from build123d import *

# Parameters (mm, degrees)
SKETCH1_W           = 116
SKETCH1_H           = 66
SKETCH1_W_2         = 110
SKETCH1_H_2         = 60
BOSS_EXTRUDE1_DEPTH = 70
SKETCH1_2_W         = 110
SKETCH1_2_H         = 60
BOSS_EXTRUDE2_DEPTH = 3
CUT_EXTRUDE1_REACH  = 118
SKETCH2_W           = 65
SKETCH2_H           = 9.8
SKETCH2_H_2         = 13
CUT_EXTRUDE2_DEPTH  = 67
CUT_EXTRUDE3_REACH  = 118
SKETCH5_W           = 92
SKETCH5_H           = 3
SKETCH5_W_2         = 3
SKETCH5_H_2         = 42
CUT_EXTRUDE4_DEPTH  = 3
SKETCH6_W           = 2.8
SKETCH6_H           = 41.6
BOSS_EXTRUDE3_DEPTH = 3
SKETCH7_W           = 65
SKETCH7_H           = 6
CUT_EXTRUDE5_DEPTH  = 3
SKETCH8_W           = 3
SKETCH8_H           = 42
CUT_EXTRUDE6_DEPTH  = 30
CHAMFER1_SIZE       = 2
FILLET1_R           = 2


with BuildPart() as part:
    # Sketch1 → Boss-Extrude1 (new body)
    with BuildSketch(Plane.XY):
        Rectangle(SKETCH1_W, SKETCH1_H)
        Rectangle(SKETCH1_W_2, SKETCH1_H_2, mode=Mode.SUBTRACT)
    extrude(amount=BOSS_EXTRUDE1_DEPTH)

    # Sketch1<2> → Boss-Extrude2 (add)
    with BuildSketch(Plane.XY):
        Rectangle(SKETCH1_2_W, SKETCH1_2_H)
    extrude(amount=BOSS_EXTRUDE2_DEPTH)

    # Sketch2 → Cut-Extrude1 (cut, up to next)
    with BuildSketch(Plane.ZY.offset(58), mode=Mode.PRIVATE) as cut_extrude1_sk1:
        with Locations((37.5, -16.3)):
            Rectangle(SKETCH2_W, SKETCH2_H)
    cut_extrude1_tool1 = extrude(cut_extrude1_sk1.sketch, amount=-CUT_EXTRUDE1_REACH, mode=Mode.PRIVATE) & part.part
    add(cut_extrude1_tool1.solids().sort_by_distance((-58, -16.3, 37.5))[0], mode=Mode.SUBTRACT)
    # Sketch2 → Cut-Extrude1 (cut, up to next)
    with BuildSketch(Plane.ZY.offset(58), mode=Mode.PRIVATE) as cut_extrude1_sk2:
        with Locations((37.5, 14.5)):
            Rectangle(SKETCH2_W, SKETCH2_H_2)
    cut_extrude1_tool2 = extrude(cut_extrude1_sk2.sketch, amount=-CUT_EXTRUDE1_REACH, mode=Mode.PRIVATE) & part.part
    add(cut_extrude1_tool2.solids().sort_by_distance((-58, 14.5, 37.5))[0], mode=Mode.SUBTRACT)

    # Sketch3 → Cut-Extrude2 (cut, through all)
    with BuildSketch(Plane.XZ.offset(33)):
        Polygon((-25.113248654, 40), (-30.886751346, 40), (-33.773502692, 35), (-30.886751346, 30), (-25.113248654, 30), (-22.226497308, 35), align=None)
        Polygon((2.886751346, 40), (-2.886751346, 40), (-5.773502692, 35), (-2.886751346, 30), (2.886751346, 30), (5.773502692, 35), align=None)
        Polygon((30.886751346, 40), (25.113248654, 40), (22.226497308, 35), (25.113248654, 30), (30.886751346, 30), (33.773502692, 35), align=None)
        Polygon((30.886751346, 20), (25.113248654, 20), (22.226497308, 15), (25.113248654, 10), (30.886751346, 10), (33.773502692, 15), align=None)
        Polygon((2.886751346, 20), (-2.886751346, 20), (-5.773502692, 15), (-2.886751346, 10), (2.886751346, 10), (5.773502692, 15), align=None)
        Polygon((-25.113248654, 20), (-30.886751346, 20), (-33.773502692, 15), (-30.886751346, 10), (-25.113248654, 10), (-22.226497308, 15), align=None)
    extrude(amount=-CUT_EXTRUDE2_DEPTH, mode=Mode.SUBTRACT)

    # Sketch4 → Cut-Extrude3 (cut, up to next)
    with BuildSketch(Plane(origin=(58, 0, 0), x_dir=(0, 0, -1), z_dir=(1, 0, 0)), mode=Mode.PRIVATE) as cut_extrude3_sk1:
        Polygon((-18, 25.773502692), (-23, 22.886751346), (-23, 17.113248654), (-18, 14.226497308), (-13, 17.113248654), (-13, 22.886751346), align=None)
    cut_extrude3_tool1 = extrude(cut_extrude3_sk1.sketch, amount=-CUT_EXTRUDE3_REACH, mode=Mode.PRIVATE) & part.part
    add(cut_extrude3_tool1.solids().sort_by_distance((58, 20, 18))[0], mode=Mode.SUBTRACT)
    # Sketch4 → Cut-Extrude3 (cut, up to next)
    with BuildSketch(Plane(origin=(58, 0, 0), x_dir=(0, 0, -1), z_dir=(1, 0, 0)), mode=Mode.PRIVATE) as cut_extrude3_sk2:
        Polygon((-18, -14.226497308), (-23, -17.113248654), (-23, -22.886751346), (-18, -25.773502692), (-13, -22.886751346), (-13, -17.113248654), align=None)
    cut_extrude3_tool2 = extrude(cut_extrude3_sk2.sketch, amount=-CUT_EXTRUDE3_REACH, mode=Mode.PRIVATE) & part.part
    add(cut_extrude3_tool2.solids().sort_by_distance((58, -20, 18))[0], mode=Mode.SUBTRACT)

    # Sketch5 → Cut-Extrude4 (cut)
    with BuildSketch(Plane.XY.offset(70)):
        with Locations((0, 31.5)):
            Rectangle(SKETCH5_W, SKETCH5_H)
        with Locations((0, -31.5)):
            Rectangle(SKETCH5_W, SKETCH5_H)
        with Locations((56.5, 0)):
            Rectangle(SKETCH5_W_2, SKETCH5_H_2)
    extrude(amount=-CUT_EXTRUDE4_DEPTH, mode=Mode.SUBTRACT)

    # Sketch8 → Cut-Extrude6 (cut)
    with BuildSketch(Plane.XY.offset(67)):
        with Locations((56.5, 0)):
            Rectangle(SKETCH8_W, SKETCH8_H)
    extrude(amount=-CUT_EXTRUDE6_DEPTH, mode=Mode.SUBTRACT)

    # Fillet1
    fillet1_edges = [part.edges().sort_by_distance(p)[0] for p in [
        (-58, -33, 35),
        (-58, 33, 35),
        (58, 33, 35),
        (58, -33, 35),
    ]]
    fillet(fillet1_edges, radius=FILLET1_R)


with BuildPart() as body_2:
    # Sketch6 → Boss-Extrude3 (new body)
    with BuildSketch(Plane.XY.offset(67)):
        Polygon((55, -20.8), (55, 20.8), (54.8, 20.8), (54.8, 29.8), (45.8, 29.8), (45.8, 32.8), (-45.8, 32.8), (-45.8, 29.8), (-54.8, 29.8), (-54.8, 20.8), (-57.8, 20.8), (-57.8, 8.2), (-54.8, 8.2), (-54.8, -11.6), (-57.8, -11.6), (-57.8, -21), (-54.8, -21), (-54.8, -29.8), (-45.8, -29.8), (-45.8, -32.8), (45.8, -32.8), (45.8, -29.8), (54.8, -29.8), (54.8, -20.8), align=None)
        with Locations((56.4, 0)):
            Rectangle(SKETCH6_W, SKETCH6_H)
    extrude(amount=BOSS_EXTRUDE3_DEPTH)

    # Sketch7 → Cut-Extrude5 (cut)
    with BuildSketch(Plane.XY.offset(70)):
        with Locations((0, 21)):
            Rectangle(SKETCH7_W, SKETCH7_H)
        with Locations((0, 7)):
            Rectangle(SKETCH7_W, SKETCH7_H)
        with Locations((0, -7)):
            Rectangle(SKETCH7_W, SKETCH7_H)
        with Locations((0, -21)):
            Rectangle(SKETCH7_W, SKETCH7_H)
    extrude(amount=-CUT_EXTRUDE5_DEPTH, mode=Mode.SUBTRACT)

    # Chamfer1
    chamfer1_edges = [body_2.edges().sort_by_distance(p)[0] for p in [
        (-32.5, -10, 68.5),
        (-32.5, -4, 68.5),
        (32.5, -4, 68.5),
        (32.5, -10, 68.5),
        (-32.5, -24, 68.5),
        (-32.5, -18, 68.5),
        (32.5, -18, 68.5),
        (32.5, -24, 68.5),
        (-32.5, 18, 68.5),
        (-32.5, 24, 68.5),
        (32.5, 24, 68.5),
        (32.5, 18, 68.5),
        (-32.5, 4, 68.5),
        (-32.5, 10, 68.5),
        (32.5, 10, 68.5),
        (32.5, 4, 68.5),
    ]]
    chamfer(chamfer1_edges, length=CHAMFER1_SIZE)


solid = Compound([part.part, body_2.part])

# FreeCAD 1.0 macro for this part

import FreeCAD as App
import Part
import Sketcher

V = App.Vector
Q = App.Units.Quantity


def edges_at(feature, points):
    """Names of the edges that pass closest to the given points."""
    edges = feature.Shape.Edges
    near = lambda p: min(range(len(edges)), key=lambda i: edges[i].distToShape(Part.Vertex(*p))[0])
    return sorted({f"Edge{near(p) + 1}" for p in points})


def add_polygon(sketch, points):
    """Adds a closed chain of lines whose ends are joined by coincident constraints."""
    first, n = sketch.GeometryCount, len(points)
    for a, b in zip(points, points[1:] + points[:1]):
        sketch.addGeometry(Part.LineSegment(App.Vector(*a, 0), App.Vector(*b, 0)), False)
    for i in range(n):
        sketch.addConstraint(Sketcher.Constraint("Coincident", first + i, 2, first + (i + 1) % n, 1))

doc = App.newDocument("Part")
body = doc.addObject("PartDesign::Body", "Body")

# Sketch on XY plane
sketch1 = body.newObject("Sketcher::SketchObject", "Sketch")
sketch1.AttachmentSupport = (doc.getObject("XY_Plane"), [""])
sketch1.MapMode = "FlatFace"
add_polygon(sketch1, [(-58, 33), (-58, -33), (58, -33), (58, 33)])  # lines 0-3
add_polygon(sketch1, [(55, -30), (-55, -30), (-55, 30), (55, 30)])  # lines 4-7
sketch1.addConstraint([
    Sketcher.Constraint("Vertical", 0),
    Sketcher.Constraint("Horizontal", 1),
    Sketcher.Constraint("Vertical", 2),
    Sketcher.Constraint("Horizontal", 3),
    Sketcher.Constraint("Horizontal", 4),
    Sketcher.Constraint("Vertical", 5),
    Sketcher.Constraint("Horizontal", 6),
    Sketcher.Constraint("Vertical", 7),
    Sketcher.Constraint("Symmetric", 0, 2, 2, 2, -1, 1),
    Sketcher.Constraint("Symmetric", 4, 2, 6, 2, -1, 1),
    Sketcher.Constraint("DistanceX", 1, 1, 1, 2, 116.0),
    Sketcher.Constraint("DistanceX", 4, 2, 4, 1, 110.0),
    Sketcher.Constraint("DistanceY", 0, 2, 0, 1, 66.0),
    Sketcher.Constraint("DistanceY", 5, 1, 5, 2, 60.0),
])
pad1 = body.newObject("PartDesign::Pad", "Pad")
pad1.Profile = sketch1
pad1.Length = 70

# Sketch on XY plane
sketch2 = body.newObject("Sketcher::SketchObject", "Sketch001")
sketch2.AttachmentSupport = (doc.getObject("XY_Plane"), [""])
sketch2.MapMode = "FlatFace"
add_polygon(sketch2, [(-55, 30), (-55, -30), (55, -30), (55, 30)])  # lines 0-3
sketch2.addConstraint([
    Sketcher.Constraint("Vertical", 0),
    Sketcher.Constraint("Horizontal", 1),
    Sketcher.Constraint("Vertical", 2),
    Sketcher.Constraint("Horizontal", 3),
    Sketcher.Constraint("Symmetric", 0, 2, 2, 2, -1, 1),
    Sketcher.Constraint("DistanceX", 1, 1, 1, 2, 110.0),
    Sketcher.Constraint("DistanceY", 0, 2, 0, 1, 60.0),
])
pad2 = body.newObject("PartDesign::Pad", "Pad001")
pad2.Profile = sketch2
pad2.Length = 3

# Sketch on YZ plane
sketch3 = body.newObject("Sketcher::SketchObject", "Sketch002")
sketch3.AttachmentSupport = (doc.getObject("YZ_Plane"), [""])
sketch3.MapMode = "FlatFace"
sketch3.AttachmentOffset = App.Placement(V(0, 0, -58), App.Rotation())
add_polygon(sketch3, [(-11, 5), (-21, 5), (-21, 70), (-11, 70)])  # lines 0-3
sketch3.addConstraint([
    Sketcher.Constraint("Horizontal", 0),
    Sketcher.Constraint("Vertical", 1),
    Sketcher.Constraint("Horizontal", 2),
    Sketcher.Constraint("Vertical", 3),
    Sketcher.Constraint("DistanceY", 1, 1, 1, 2, 65.0),
    Sketcher.Constraint("DistanceX", 0, 2, 0, 1, 9.8),
    Sketcher.Constraint("DistanceY", -1, 1, 0, 2, 5.0),
    Sketcher.Constraint("DistanceX", 0, 2, -1, 1, 21.2),
])
pocket1 = body.newObject("PartDesign::Pocket", "Pocket")
pocket1.Profile = sketch3
pocket1.Type = "UpToFirst"
pocket1.Reversed = True

# Sketch on YZ plane
sketch4 = body.newObject("Sketcher::SketchObject", "Sketch003")
sketch4.AttachmentSupport = (doc.getObject("YZ_Plane"), [""])
sketch4.MapMode = "FlatFace"
sketch4.AttachmentOffset = App.Placement(V(0, 0, -58), App.Rotation())
add_polygon(sketch4, [(21, 5), (8, 5), (8, 70), (21, 70)])  # lines 0-3
sketch4.addConstraint([
    Sketcher.Constraint("Horizontal", 0),
    Sketcher.Constraint("Vertical", 1),
    Sketcher.Constraint("Horizontal", 2),
    Sketcher.Constraint("Vertical", 3),
    Sketcher.Constraint("DistanceX", 0, 2, 0, 1, 13.0),
    Sketcher.Constraint("DistanceY", 1, 1, 1, 2, 65.0),
    Sketcher.Constraint("DistanceX", -1, 1, 0, 2, 8.0),
    Sketcher.Constraint("DistanceY", -1, 1, 0, 2, 5.0),
])
pocket2 = body.newObject("PartDesign::Pocket", "Pocket001")
pocket2.Profile = sketch4
pocket2.Type = "UpToFirst"
pocket2.Reversed = True

# Sketch on XZ plane
sketch5 = body.newObject("Sketcher::SketchObject", "Sketch004")
sketch5.AttachmentSupport = (doc.getObject("XZ_Plane"), [""])
sketch5.MapMode = "FlatFace"
sketch5.AttachmentOffset = App.Placement(V(0, 0, 33), App.Rotation())
add_polygon(sketch5, [(-25, 40), (-31, 40), (-34, 35), (-31, 30), (-25, 30), (-22, 35)])  # lines 0-5
add_polygon(sketch5, [(3, 40), (-3, 40), (-6, 35), (-3, 30), (3, 30), (6, 35)])  # lines 6-11
add_polygon(sketch5, [(31, 40), (25, 40), (22, 35), (25, 30), (31, 30), (34, 35)])  # lines 12-17
add_polygon(sketch5, [(31, 20), (25, 20), (22, 15), (25, 10), (31, 10), (34, 15)])  # lines 18-23
add_polygon(sketch5, [(3, 20), (-3, 20), (-6, 15), (-3, 10), (3, 10), (6, 15)])  # lines 24-29
add_polygon(sketch5, [(-25, 20), (-31, 20), (-34, 15), (-31, 10), (-25, 10), (-22, 15)])  # lines 30-35
sketch5.addConstraint([
    Sketcher.Constraint("Horizontal", 0),
    Sketcher.Constraint("Horizontal", 3),
    Sketcher.Constraint("Horizontal", 6),
    Sketcher.Constraint("Horizontal", 9),
    Sketcher.Constraint("Horizontal", 12),
    Sketcher.Constraint("Horizontal", 15),
    Sketcher.Constraint("Horizontal", 18),
    Sketcher.Constraint("Horizontal", 21),
    Sketcher.Constraint("Horizontal", 24),
    Sketcher.Constraint("Horizontal", 27),
    Sketcher.Constraint("Horizontal", 30),
    Sketcher.Constraint("Horizontal", 33),
    Sketcher.Constraint("Symmetric", 7, 2, 10, 2, -2),
    Sketcher.Constraint("Symmetric", 5, 2, 12, 2, -2),
    Sketcher.Constraint("Symmetric", 4, 2, 13, 2, -2),
    Sketcher.Constraint("Symmetric", 3, 2, 14, 2, -2),
    Sketcher.Constraint("Symmetric", 1, 2, 16, 2, -2),
    Sketcher.Constraint("Symmetric", 25, 2, 28, 2, -2),
    Sketcher.Constraint("Symmetric", 23, 2, 30, 2, -2),
    Sketcher.Constraint("Symmetric", 22, 2, 31, 2, -2),
    Sketcher.Constraint("Symmetric", 21, 2, 32, 2, -2),
    Sketcher.Constraint("Symmetric", 19, 2, 34, 2, -2),
    Sketcher.Constraint("Parallel", 1, 4),
    Sketcher.Constraint("Parallel", 2, 5),
    Sketcher.Constraint("Parallel", 4, 7),
    Sketcher.Constraint("Parallel", 5, 8),
    Sketcher.Constraint("Parallel", 7, 10),
    Sketcher.Constraint("Parallel", 8, 11),
    Sketcher.Constraint("Parallel", 10, 13),
    Sketcher.Constraint("Parallel", 13, 16),
    Sketcher.Constraint("Parallel", 14, 17),
    Sketcher.Constraint("Parallel", 16, 19),
    Sketcher.Constraint("Parallel", 17, 20),
    Sketcher.Constraint("Parallel", 19, 22),
    Sketcher.Constraint("Parallel", 20, 23),
    Sketcher.Constraint("Parallel", 22, 25),
    Sketcher.Constraint("Parallel", 23, 26),
    Sketcher.Constraint("Parallel", 25, 28),
    Sketcher.Constraint("Parallel", 26, 29),
    Sketcher.Constraint("Parallel", 31, 34),
    Sketcher.Constraint("Parallel", 32, 35),
    Sketcher.Constraint("Horizontal", 1, 2, 4, 2),
    Sketcher.Constraint("Horizontal", 5, 2, 6, 2),
    Sketcher.Constraint("Horizontal", 4, 2, 7, 2),
    Sketcher.Constraint("Horizontal", 3, 2, 8, 2),
    Sketcher.Constraint("Horizontal", 19, 2, 22, 2),
    Sketcher.Constraint("Horizontal", 23, 2, 24, 2),
    Sketcher.Constraint("Horizontal", 22, 2, 25, 2),
    Sketcher.Constraint("Horizontal", 21, 2, 26, 2),
    Sketcher.Constraint("Vertical", 0, 2, 2, 2),
    Sketcher.Constraint("Vertical", 14, 2, 18, 2),
    Sketcher.Constraint("Vertical", 13, 2, 19, 2),
    Sketcher.Constraint("Vertical", 18, 2, 20, 2),
    Sketcher.Constraint("Vertical", 17, 2, 21, 2),
    Sketcher.Constraint("Vertical", 8, 2, 24, 2),
    Sketcher.Constraint("Equal", 3, 6),
    Sketcher.Constraint("Angle", 1, Q("-120 deg")),
    Sketcher.Constraint("DistanceY", -1, 1, 0, 2, 40.0),
    Sketcher.Constraint("DistanceY", -1, 1, 1, 2, 35.0),
    Sketcher.Constraint("DistanceY", -1, 1, 18, 2, 20.0),
    Sketcher.Constraint("DistanceX", 0, 2, 6, 2, 28.0),
    Sketcher.Constraint("DistanceX", 0, 2, 0, 1, 5.773503),
])
pocket3 = body.newObject("PartDesign::Pocket", "Pocket002")
pocket3.Profile = sketch5
pocket3.Type = "ThroughAll"

# Sketch on YZ plane
sketch6 = body.newObject("Sketcher::SketchObject", "Sketch005")
sketch6.AttachmentSupport = (doc.getObject("YZ_Plane"), [""])
sketch6.MapMode = "FlatFace"
sketch6.AttachmentOffset = App.Placement(V(0, 0, 58), App.Rotation())
add_polygon(sketch6, [(26, 18), (23, 23), (17, 23), (14, 18), (17, 13), (23, 13)])  # lines 0-5
sketch6.addConstraint([
    Sketcher.Constraint("Horizontal", 1),
    Sketcher.Constraint("Horizontal", 4),
    Sketcher.Constraint("Parallel", 0, 3),
    Sketcher.Constraint("Parallel", 2, 5),
    Sketcher.Constraint("Horizontal", 2, 2, 5, 2),
    Sketcher.Constraint("Vertical", 1, 2, 3, 2),
    Sketcher.Constraint("Vertical", 0, 2, 4, 2),
    Sketcher.Constraint("Angle", 0, Q("120 deg")),
    Sketcher.Constraint("DistanceY", -1, 1, 0, 2, 23.0),
    Sketcher.Constraint("DistanceY", -1, 1, 2, 2, 18.0),
    Sketcher.Constraint("DistanceX", 1, 2, 1, 1, 5.773503),
    Sketcher.Constraint("DistanceX", -1, 1, 0, 2, 22.886751),
])
pocket4 = body.newObject("PartDesign::Pocket", "Pocket003")
pocket4.Profile = sketch6
pocket4.Type = "UpToFirst"

# Sketch on YZ plane
sketch7 = body.newObject("Sketcher::SketchObject", "Sketch006")
sketch7.AttachmentSupport = (doc.getObject("YZ_Plane"), [""])
sketch7.MapMode = "FlatFace"
sketch7.AttachmentOffset = App.Placement(V(0, 0, 58), App.Rotation())
add_polygon(sketch7, [(-14, 18), (-17, 23), (-23, 23), (-26, 18), (-23, 13), (-17, 13)])  # lines 0-5
sketch7.addConstraint([
    Sketcher.Constraint("Horizontal", 1),
    Sketcher.Constraint("Horizontal", 4),
    Sketcher.Constraint("Parallel", 0, 3),
    Sketcher.Constraint("Parallel", 2, 5),
    Sketcher.Constraint("Horizontal", 2, 2, 5, 2),
    Sketcher.Constraint("Vertical", 1, 2, 3, 2),
    Sketcher.Constraint("Vertical", 0, 2, 4, 2),
    Sketcher.Constraint("Angle", 0, Q("120 deg")),
    Sketcher.Constraint("DistanceY", -1, 1, 0, 2, 23.0),
    Sketcher.Constraint("DistanceY", -1, 1, 2, 2, 18.0),
    Sketcher.Constraint("DistanceX", 1, 2, 1, 1, 5.773503),
    Sketcher.Constraint("DistanceX", 0, 2, -1, 1, 17.113249),
])
pocket5 = body.newObject("PartDesign::Pocket", "Pocket004")
pocket5.Profile = sketch7
pocket5.Type = "UpToFirst"

# Sketch on XY plane
sketch8 = body.newObject("Sketcher::SketchObject", "Sketch007")
sketch8.AttachmentSupport = (doc.getObject("XY_Plane"), [""])
sketch8.MapMode = "FlatFace"
sketch8.AttachmentOffset = App.Placement(V(0, 0, 70), App.Rotation())
add_polygon(sketch8, [(-46, 33), (-46, 30), (46, 30), (46, 33)])  # lines 0-3
add_polygon(sketch8, [(-46, -30), (-46, -33), (46, -33), (46, -30)])  # lines 4-7
add_polygon(sketch8, [(55, 21), (55, -21), (58, -21), (58, 21)])  # lines 8-11
sketch8.addConstraint([
    Sketcher.Constraint("Vertical", 0),
    Sketcher.Constraint("Horizontal", 1),
    Sketcher.Constraint("Vertical", 2),
    Sketcher.Constraint("Horizontal", 3),
    Sketcher.Constraint("Vertical", 4),
    Sketcher.Constraint("Horizontal", 5),
    Sketcher.Constraint("Vertical", 6),
    Sketcher.Constraint("Horizontal", 7),
    Sketcher.Constraint("Vertical", 8),
    Sketcher.Constraint("Horizontal", 9),
    Sketcher.Constraint("Vertical", 10),
    Sketcher.Constraint("Horizontal", 11),
    Sketcher.Constraint("Symmetric", 2, 2, 4, 2, -1, 1),
    Sketcher.Constraint("Symmetric", 0, 2, 6, 2, -1, 1),
    Sketcher.Constraint("Vertical", 3, 2, 4, 2),
    Sketcher.Constraint("Equal", 11, 0),
    Sketcher.Constraint("DistanceX", 1, 1, 1, 2, 92.0),
    Sketcher.Constraint("DistanceX", 9, 1, 9, 2, 3.0),
    Sketcher.Constraint("DistanceY", 8, 2, 8, 1, 42.0),
    Sketcher.Constraint("DistanceY", -1, 1, 0, 2, 30.0),
    Sketcher.Constraint("DistanceX", -1, 1, 8, 2, 55.0),
    Sketcher.Constraint("DistanceY", 8, 2, -1, 1, 21.0),
])
pocket6 = body.newObject("PartDesign::Pocket", "Pocket005")
pocket6.Profile = sketch8
pocket6.Length = 3

# Sketch on XY plane
sketch9 = body.newObject("Sketcher::SketchObject", "Sketch008")
sketch9.AttachmentSupport = (doc.getObject("XY_Plane"), [""])
sketch9.MapMode = "FlatFace"
sketch9.AttachmentOffset = App.Placement(V(0, 0, 67), App.Rotation())
add_polygon(sketch9, [(55, 21), (55, -21), (58, -21), (58, 21)])  # lines 0-3
sketch9.addConstraint([
    Sketcher.Constraint("Vertical", 0),
    Sketcher.Constraint("Horizontal", 1),
    Sketcher.Constraint("Vertical", 2),
    Sketcher.Constraint("Horizontal", 3),
    Sketcher.Constraint("DistanceX", 1, 1, 1, 2, 3.0),
    Sketcher.Constraint("DistanceY", 0, 2, 0, 1, 42.0),
    Sketcher.Constraint("DistanceX", -1, 1, 0, 2, 55.0),
    Sketcher.Constraint("DistanceY", 0, 2, -1, 1, 21.0),
])
pocket7 = body.newObject("PartDesign::Pocket", "Pocket006")
pocket7.Profile = sketch9
pocket7.Length = 30
doc.recompute()

fillet = body.newObject("PartDesign::Fillet", "Fillet")
fillet.Base = (pocket7, edges_at(pocket7, [
    (-58, -33, 35),
    (-58, 33, 35),
    (58, 33, 35),
    (58, -33, 35),
]))
fillet.Radius = 2
body2 = doc.addObject("PartDesign::Body", "Body001")

# Sketch on XY plane
sketch10 = body2.newObject("Sketcher::SketchObject", "Sketch009")
sketch10.AttachmentSupport = (doc.getObject("XY_Plane001"), [""])
sketch10.MapMode = "FlatFace"
sketch10.AttachmentOffset = App.Placement(V(0, 0, 67), App.Rotation())
add_polygon(sketch10, [(54.8, 20.8), (54.8, 29.8), (45.8, 29.8), (45.8, 32.8), (-45.8, 32.8), (-45.8, 29.8), (-54.8, 29.8), (-54.8, 20.8), (-57.8, 20.8), (-57.8, 8.2), (-54.8, 8.2), (-54.8, -11.6), (-57.8, -11.6), (-57.8, -21), (-54.8, -21), (-54.8, -29.8), (-45.8, -29.8), (-45.8, -32.8), (45.8, -32.8), (45.8, -29.8), (54.8, -29.8), (54.8, -20.8), (57.8, -20.8), (57.8, 20.8)])  # lines 0-23
sketch10.addConstraint([
    Sketcher.Constraint("Vertical", 0),
    Sketcher.Constraint("Horizontal", 1),
    Sketcher.Constraint("Vertical", 2),
    Sketcher.Constraint("Horizontal", 3),
    Sketcher.Constraint("Vertical", 4),
    Sketcher.Constraint("Horizontal", 5),
    Sketcher.Constraint("Vertical", 6),
    Sketcher.Constraint("Horizontal", 7),
    Sketcher.Constraint("Vertical", 8),
    Sketcher.Constraint("Horizontal", 9),
    Sketcher.Constraint("Vertical", 10),
    Sketcher.Constraint("Horizontal", 11),
    Sketcher.Constraint("Vertical", 12),
    Sketcher.Constraint("Horizontal", 13),
    Sketcher.Constraint("Vertical", 14),
    Sketcher.Constraint("Horizontal", 15),
    Sketcher.Constraint("Vertical", 16),
    Sketcher.Constraint("Horizontal", 17),
    Sketcher.Constraint("Vertical", 18),
    Sketcher.Constraint("Horizontal", 19),
    Sketcher.Constraint("Vertical", 20),
    Sketcher.Constraint("Horizontal", 21),
    Sketcher.Constraint("Vertical", 22),
    Sketcher.Constraint("Horizontal", 23),
    Sketcher.Constraint("Symmetric", 0, 2, 14, 2, -1, 1),
    Sketcher.Constraint("Symmetric", 2, 2, 16, 2, -1, 1),
    Sketcher.Constraint("Symmetric", 4, 2, 18, 2, -1, 1),
    Sketcher.Constraint("Symmetric", 6, 2, 20, 2, -1, 1),
    Sketcher.Constraint("Symmetric", 1, 2, 4, 2, -2),
    Sketcher.Constraint("Symmetric", 7, 2, 22, 2, -2),
    Sketcher.Constraint("Vertical", 6, 2, 9, 2),
    Sketcher.Constraint("Vertical", 8, 2, 11, 2),
    Sketcher.Constraint("Vertical", 10, 2, 13, 2),
    Sketcher.Constraint("Equal", 19, 0),
    Sketcher.Constraint("Equal", 23, 2),
    Sketcher.Constraint("DistanceX", 1, 2, 1, 1, 9.0),
    Sketcher.Constraint("DistanceX", 7, 2, 7, 1, 3.0),
    Sketcher.Constraint("DistanceX", 3, 2, 3, 1, 91.6),
    Sketcher.Constraint("DistanceY", 8, 2, 8, 1, 12.6),
    Sketcher.Constraint("DistanceY", 10, 2, 10, 1, 19.8),
    Sketcher.Constraint("DistanceY", 12, 2, 12, 1, 9.4),
    Sketcher.Constraint("DistanceY", 14, 2, 14, 1, 8.8),
])
pad3 = body2.newObject("PartDesign::Pad", "Pad002")
pad3.Profile = sketch10
pad3.Length = 3

# Sketch on XY plane
sketch11 = body2.newObject("Sketcher::SketchObject", "Sketch010")
sketch11.AttachmentSupport = (doc.getObject("XY_Plane001"), [""])
sketch11.MapMode = "FlatFace"
sketch11.AttachmentOffset = App.Placement(V(0, 0, 70), App.Rotation())
add_polygon(sketch11, [(-32, 24), (-32, 18), (32, 18), (32, 24)])  # lines 0-3
add_polygon(sketch11, [(-32, 10), (-32, 4), (32, 4), (32, 10)])  # lines 4-7
add_polygon(sketch11, [(-32, -4), (-32, -10), (32, -10), (32, -4)])  # lines 8-11
add_polygon(sketch11, [(-32, -18), (-32, -24), (32, -24), (32, -18)])  # lines 12-15
sketch11.addConstraint([
    Sketcher.Constraint("Vertical", 0),
    Sketcher.Constraint("Horizontal", 1),
    Sketcher.Constraint("Vertical", 2),
    Sketcher.Constraint("Horizontal", 3),
    Sketcher.Constraint("Vertical", 4),
    Sketcher.Constraint("Horizontal", 5),
    Sketcher.Constraint("Vertical", 6),
    Sketcher.Constraint("Horizontal", 7),
    Sketcher.Constraint("Vertical", 8),
    Sketcher.Constraint("Horizontal", 9),
    Sketcher.Constraint("Vertical", 10),
    Sketcher.Constraint("Horizontal", 11),
    Sketcher.Constraint("Vertical", 12),
    Sketcher.Constraint("Horizontal", 13),
    Sketcher.Constraint("Vertical", 14),
    Sketcher.Constraint("Horizontal", 15),
    Sketcher.Constraint("Symmetric", 6, 2, 8, 2, -1, 1),
    Sketcher.Constraint("Symmetric", 4, 2, 10, 2, -1, 1),
    Sketcher.Constraint("Symmetric", 2, 2, 12, 2, -1, 1),
    Sketcher.Constraint("Symmetric", 0, 2, 14, 2, -1, 1),
    Sketcher.Constraint("Vertical", 3, 2, 4, 2),
    Sketcher.Constraint("Vertical", 2, 2, 5, 2),
    Sketcher.Constraint("Vertical", 7, 2, 8, 2),
    Sketcher.Constraint("Equal", 2, 4),
    Sketcher.Constraint("DistanceX", 1, 1, 1, 2, 65.0),
    Sketcher.Constraint("DistanceY", 0, 2, 0, 1, 6.0),
    Sketcher.Constraint("DistanceY", -1, 1, 0, 2, 18.0),
    Sketcher.Constraint("DistanceY", -1, 1, 4, 2, 4.0),
])
pocket8 = body2.newObject("PartDesign::Pocket", "Pocket007")
pocket8.Profile = sketch11
pocket8.Length = 3
doc.recompute()

chamfer = body2.newObject("PartDesign::Chamfer", "Chamfer")
chamfer.Base = (pocket8, edges_at(pocket8, [
    (-32.5, -10, 68.5),
    (-32.5, -4, 68.5),
    (32.5, -4, 68.5),
    (32.5, -10, 68.5),
    (-32.5, -24, 68.5),
    (-32.5, -18, 68.5),
    (32.5, -18, 68.5),
    (32.5, -24, 68.5),
    (-32.5, 18, 68.5),
    (-32.5, 24, 68.5),
    (32.5, 24, 68.5),
    (32.5, 18, 68.5),
    (-32.5, 4, 68.5),
    (-32.5, 10, 68.5),
    (32.5, 10, 68.5),
    (32.5, 4, 68.5),
]))
chamfer.Size = 2

doc.recompute()
